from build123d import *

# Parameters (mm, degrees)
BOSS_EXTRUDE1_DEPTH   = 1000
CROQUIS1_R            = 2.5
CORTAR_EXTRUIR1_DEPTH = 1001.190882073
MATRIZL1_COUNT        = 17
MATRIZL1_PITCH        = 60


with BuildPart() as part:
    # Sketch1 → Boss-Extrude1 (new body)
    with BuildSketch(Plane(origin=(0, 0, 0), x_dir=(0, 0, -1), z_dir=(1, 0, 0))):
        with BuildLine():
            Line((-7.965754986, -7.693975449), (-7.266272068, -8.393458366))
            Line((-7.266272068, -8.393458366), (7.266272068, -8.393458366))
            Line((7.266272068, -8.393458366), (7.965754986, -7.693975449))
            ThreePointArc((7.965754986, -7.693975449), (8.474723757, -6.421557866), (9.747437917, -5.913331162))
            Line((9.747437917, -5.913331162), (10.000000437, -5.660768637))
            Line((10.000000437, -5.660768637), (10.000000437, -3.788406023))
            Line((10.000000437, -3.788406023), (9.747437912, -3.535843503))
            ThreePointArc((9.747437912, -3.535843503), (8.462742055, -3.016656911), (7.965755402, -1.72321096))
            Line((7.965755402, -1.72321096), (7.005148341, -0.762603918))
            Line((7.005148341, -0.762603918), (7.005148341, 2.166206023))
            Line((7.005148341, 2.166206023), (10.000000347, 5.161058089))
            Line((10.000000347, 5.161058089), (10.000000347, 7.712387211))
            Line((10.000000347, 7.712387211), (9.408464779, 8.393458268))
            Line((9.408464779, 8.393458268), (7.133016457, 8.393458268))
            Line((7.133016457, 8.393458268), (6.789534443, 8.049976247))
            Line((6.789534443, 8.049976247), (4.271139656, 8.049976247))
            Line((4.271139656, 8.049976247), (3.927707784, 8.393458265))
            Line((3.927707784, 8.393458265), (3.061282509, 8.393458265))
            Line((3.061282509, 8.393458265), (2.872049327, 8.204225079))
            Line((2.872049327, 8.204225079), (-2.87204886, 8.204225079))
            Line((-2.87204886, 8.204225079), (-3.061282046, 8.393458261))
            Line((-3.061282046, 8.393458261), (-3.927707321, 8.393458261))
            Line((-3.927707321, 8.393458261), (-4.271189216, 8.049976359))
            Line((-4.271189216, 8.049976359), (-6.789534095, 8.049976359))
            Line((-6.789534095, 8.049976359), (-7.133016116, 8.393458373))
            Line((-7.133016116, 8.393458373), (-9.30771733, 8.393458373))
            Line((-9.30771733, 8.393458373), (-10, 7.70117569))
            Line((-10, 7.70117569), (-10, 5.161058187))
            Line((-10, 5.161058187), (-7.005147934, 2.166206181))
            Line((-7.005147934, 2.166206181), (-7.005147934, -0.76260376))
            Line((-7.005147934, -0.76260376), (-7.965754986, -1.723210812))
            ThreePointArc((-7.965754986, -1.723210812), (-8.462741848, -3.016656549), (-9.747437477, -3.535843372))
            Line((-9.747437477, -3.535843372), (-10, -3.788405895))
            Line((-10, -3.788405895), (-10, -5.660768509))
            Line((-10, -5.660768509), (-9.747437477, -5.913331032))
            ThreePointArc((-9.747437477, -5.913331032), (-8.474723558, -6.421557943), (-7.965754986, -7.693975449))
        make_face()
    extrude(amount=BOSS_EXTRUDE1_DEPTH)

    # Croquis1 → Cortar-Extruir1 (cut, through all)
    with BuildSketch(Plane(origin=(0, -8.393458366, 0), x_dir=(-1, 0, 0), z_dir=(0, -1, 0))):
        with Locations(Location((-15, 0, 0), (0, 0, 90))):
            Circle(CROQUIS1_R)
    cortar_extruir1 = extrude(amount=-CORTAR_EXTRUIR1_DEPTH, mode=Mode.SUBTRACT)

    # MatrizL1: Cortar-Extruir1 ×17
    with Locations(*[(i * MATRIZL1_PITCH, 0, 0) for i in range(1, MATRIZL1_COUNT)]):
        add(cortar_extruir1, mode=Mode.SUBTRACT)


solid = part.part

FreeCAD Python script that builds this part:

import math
import FreeCAD as App
import Part
import Sketcher
from FreeCAD import Vector
Q = App.Units.Quantity

doc = App.newDocument("Part")
body = doc.addObject("PartDesign::Body", "Body")

sketch1 = body.newObject("Sketcher::SketchObject", "Sketch")
sketch1.AttachmentSupport = (doc.getObject("YZ_Plane"), [""])
sketch1.MapMode = "FlatFace"
sketch1.addGeometry(Part.LineSegment(Vector(-7.69, 7.97, 0), Vector(-8.39, 7.27, 0)), False)
sketch1.addGeometry(Part.LineSegment(Vector(-8.39, 7.27, 0), Vector(-8.39, -7.27, 0)), False)
sketch1.addGeometry(Part.LineSegment(Vector(-8.39, -7.27, 0), Vector(-7.69, -7.97, 0)), False)
sketch1.addGeometry(Part.ArcOfCircle(Part.Circle(Vector(-7.65, -9.7, 0), Vector(0, 0, 1), 1.74), math.radians(-1), math.radians(91)), False)
sketch1.addGeometry(Part.LineSegment(Vector(-5.91, -9.75, 0), Vector(-5.66, -10, 0)), False)
sketch1.addGeometry(Part.LineSegment(Vector(-5.66, -10, 0), Vector(-3.79, -10, 0)), False)
sketch1.addGeometry(Part.LineSegment(Vector(-3.79, -10, 0), Vector(-3.54, -9.75, 0)), False)
sketch1.addGeometry(Part.ArcOfCircle(Part.Circle(Vector(-1.8, -9.7, 0), Vector(0, 0, 1), 1.74), math.radians(88), math.radians(181)), False)
sketch1.addGeometry(Part.LineSegment(Vector(-1.72, -7.97, 0), Vector(-0.76, -7.01, 0)), False)
sketch1.addGeometry(Part.LineSegment(Vector(-0.76, -7.01, 0), Vector(2.17, -7.01, 0)), False)
sketch1.addGeometry(Part.LineSegment(Vector(2.17, -7.01, 0), Vector(5.16, -10, 0)), False)
sketch1.addGeometry(Part.LineSegment(Vector(5.16, -10, 0), Vector(7.71, -10, 0)), False)
sketch1.addGeometry(Part.LineSegment(Vector(7.71, -10, 0), Vector(8.39, -9.41, 0)), False)
sketch1.addGeometry(Part.LineSegment(Vector(8.39, -9.41, 0), Vector(8.39, -7.13, 0)), False)
sketch1.addGeometry(Part.LineSegment(Vector(8.39, -7.13, 0), Vector(8.05, -6.79, 0)), False)
sketch1.addGeometry(Part.LineSegment(Vector(8.05, -6.79, 0), Vector(8.05, -4.27, 0)), False)
sketch1.addGeometry(Part.LineSegment(Vector(8.05, -4.27, 0), Vector(8.39, -3.93, 0)), False)
sketch1.addGeometry(Part.LineSegment(Vector(8.39, -3.93, 0), Vector(8.39, -3.06, 0)), False)
sketch1.addGeometry(Part.LineSegment(Vector(8.39, -3.06, 0), Vector(8.2, -2.87, 0)), False)
sketch1.addGeometry(Part.LineSegment(Vector(8.2, -2.87, 0), Vector(8.2, 2.87, 0)), False)
sketch1.addGeometry(Part.LineSegment(Vector(8.2, 2.87, 0), Vector(8.39, 3.06, 0)), False)
sketch1.addGeometry(Part.LineSegment(Vector(8.39, 3.06, 0), Vector(8.39, 3.93, 0)), False)
sketch1.addGeometry(Part.LineSegment(Vector(8.39, 3.93, 0), Vector(8.05, 4.27, 0)), False)
sketch1.addGeometry(Part.LineSegment(Vector(8.05, 4.27, 0), Vector(8.05, 6.79, 0)), False)
sketch1.addGeometry(Part.LineSegment(Vector(8.05, 6.79, 0), Vector(8.39, 7.13, 0)), False)
sketch1.addGeometry(Part.LineSegment(Vector(8.39, 7.13, 0), Vector(8.39, 9.31, 0)), False)
sketch1.addGeometry(Part.LineSegment(Vector(8.39, 9.31, 0), Vector(7.7, 10, 0)), False)
sketch1.addGeometry(Part.LineSegment(Vector(7.7, 10, 0), Vector(5.16, 10, 0)), False)
sketch1.addGeometry(Part.LineSegment(Vector(5.16, 10, 0), Vector(2.17, 7.01, 0)), False)
sketch1.addGeometry(Part.LineSegment(Vector(2.17, 7.01, 0), Vector(-0.76, 7.01, 0)), False)
sketch1.addGeometry(Part.LineSegment(Vector(-0.76, 7.01, 0), Vector(-1.72, 7.97, 0)), False)
sketch1.addGeometry(Part.ArcOfCircle(Part.Circle(Vector(-1.8, 9.7, 0), Vector(0, 0, 1), 1.74), math.radians(179), math.radians(272)), False)
sketch1.addGeometry(Part.LineSegment(Vector(-3.54, 9.75, 0), Vector(-3.79, 10, 0)), False)
sketch1.addGeometry(Part.LineSegment(Vector(-3.79, 10, 0), Vector(-5.66, 10, 0)), False)
sketch1.addGeometry(Part.LineSegment(Vector(-5.66, 10, 0), Vector(-5.91, 9.75, 0)), False)
sketch1.addGeometry(Part.ArcOfCircle(Part.Circle(Vector(-7.65, 9.7, 0), Vector(0, 0, 1), 1.74), math.radians(-91), math.radians(1)), False)
sketch1.addConstraint(Sketcher.Constraint("Coincident", 0, 2, 1, 1))
sketch1.addConstraint(Sketcher.Constraint("Coincident", 1, 2, 2, 1))
sketch1.addConstraint(Sketcher.Constraint("Coincident", 2, 2, 3, 2))
sketch1.addConstraint(Sketcher.Constraint("Coincident", 3, 1, 4, 1))
sketch1.addConstraint(Sketcher.Constraint("Coincident", 4, 2, 5, 1))
sketch1.addConstraint(Sketcher.Constraint("Coincident", 5, 2, 6, 1))
sketch1.addConstraint(Sketcher.Constraint("Coincident", 6, 2, 7, 2))
sketch1.addConstraint(Sketcher.Constraint("Coincident", 7, 1, 8, 1))
sketch1.addConstraint(Sketcher.Constraint("Coincident", 8, 2, 9, 1))
sketch1.addConstraint(Sketcher.Constraint("Coincident", 9, 2, 10, 1))
sketch1.addConstraint(Sketcher.Constraint("Coincident", 10, 2, 11, 1))
sketch1.addConstraint(Sketcher.Constraint("Coincident", 11, 2, 12, 1))
sketch1.addConstraint(Sketcher.Constraint("Coincident", 12, 2, 13, 1))
sketch1.addConstraint(Sketcher.Constraint("Coincident", 13, 2, 14, 1))
sketch1.addConstraint(Sketcher.Constraint("Coincident", 14, 2, 15, 1))
sketch1.addConstraint(Sketcher.Constraint("Coincident", 15, 2, 16, 1))
sketch1.addConstraint(Sketcher.Constraint("Coincident", 16, 2, 17, 1))
sketch1.addConstraint(Sketcher.Constraint("Coincident", 17, 2, 18, 1))
sketch1.addConstraint(Sketcher.Constraint("Coincident", 18, 2, 19, 1))
sketch1.addConstraint(Sketcher.Constraint("Coincident", 19, 2, 20, 1))
sketch1.addConstraint(Sketcher.Constraint("Coincident", 20, 2, 21, 1))
sketch1.addConstraint(Sketcher.Constraint("Coincident", 21, 2, 22, 1))
sketch1.addConstraint(Sketcher.Constraint("Coincident", 22, 2, 23, 1))
sketch1.addConstraint(Sketcher.Constraint("Coincident", 23, 2, 24, 1))
sketch1.addConstraint(Sketcher.Constraint("Coincident", 24, 2, 25, 1))
sketch1.addConstraint(Sketcher.Constraint("Coincident", 25, 2, 26, 1))
sketch1.addConstraint(Sketcher.Constraint("Coincident", 26, 2, 27, 1))
sketch1.addConstraint(Sketcher.Constraint("Coincident", 27, 2, 28, 1))
sketch1.addConstraint(Sketcher.Constraint("Coincident", 28, 2, 29, 1))
sketch1.addConstraint(Sketcher.Constraint("Coincident", 29, 2, 30, 1))
sketch1.addConstraint(Sketcher.Constraint("Coincident", 30, 2, 31, 2))
sketch1.addConstraint(Sketcher.Constraint("Coincident", 31, 1, 32, 1))
sketch1.addConstraint(Sketcher.Constraint("Coincident", 32, 2, 33, 1))
sketch1.addConstraint(Sketcher.Constraint("Coincident", 33, 2, 34, 1))
sketch1.addConstraint(Sketcher.Constraint("Coincident", 34, 2, 35, 2))
sketch1.addConstraint(Sketcher.Constraint("Coincident", 35, 1, 0, 1))
sketch1.addConstraint(Sketcher.Constraint("Vertical", 1))
sketch1.addConstraint(Sketcher.Constraint("Horizontal", 5))
sketch1.addConstraint(Sketcher.Constraint("Horizontal", 9))
sketch1.addConstraint(Sketcher.Constraint("Horizontal", 11))
sketch1.addConstraint(Sketcher.Constraint("Vertical", 13))
sketch1.addConstraint(Sketcher.Constraint("Vertical", 15))
sketch1.addConstraint(Sketcher.Constraint("Vertical", 17))
sketch1.addConstraint(Sketcher.Constraint("Vertical", 19))
sketch1.addConstraint(Sketcher.Constraint("Vertical", 21))
sketch1.addConstraint(Sketcher.Constraint("Vertical", 23))
sketch1.addConstraint(Sketcher.Constraint("Vertical", 25))
sketch1.addConstraint(Sketcher.Constraint("Horizontal", 27))
sketch1.addConstraint(Sketcher.Constraint("Horizontal", 29))
sketch1.addConstraint(Sketcher.Constraint("Horizontal", 33))
sketch1.addConstraint(Sketcher.Constraint("Equal", 3, 7))
sketch1.addConstraint(Sketcher.Constraint("Equal", 7, 31))
sketch1.addConstraint(Sketcher.Constraint("Equal", 31, 35))
sketch1.addConstraint(Sketcher.Constraint("Symmetric", 7, 3, 31, 3, -1))
sketch1.addConstraint(Sketcher.Constraint("Symmetric", 3, 3, 35, 3, -1))
sketch1.addConstraint(Sketcher.Constraint("Symmetric", 17, 2, 20, 2, -1))
sketch1.addConstraint(Sketcher.Constraint("Symmetric", 14, 2, 23, 2, -1))
sketch1.addConstraint(Sketcher.Constraint("Symmetric", 13, 2, 24, 2, -1))
sketch1.addConstraint(Sketcher.Constraint("Symmetric", 10, 2, 27, 2, -1))
sketch1.addConstraint(Sketcher.Constraint("Symmetric", 9, 2, 28, 2, -1))
sketch1.addConstraint(Sketcher.Constraint("Symmetric", 5, 2, 32, 2, -1))
sketch1.addConstraint(Sketcher.Constraint("Perpendicular", 0, 2))
sketch1.addConstraint(Sketcher.Constraint("Parallel", 2, 4))
sketch1.addConstraint(Sketcher.Constraint("Perpendicular", 4, 6))
sketch1.addConstraint(Sketcher.Constraint("Parallel", 6, 8))
sketch1.addConstraint(Sketcher.Constraint("Perpendicular", 8, 10))
sketch1.addConstraint(Sketcher.Constraint("Parallel", 10, 14))
sketch1.addConstraint(Sketcher.Constraint("Parallel", 14, 18))
sketch1.addConstraint(Sketcher.Constraint("Perpendicular", 18, 20))
sketch1.addConstraint(Sketcher.Constraint("Perpendicular", 20, 22))
sketch1.addConstraint(Sketcher.Constraint("Perpendicular", 22, 24))
sketch1.addConstraint(Sketcher.Constraint("Perpendicular", 24, 26))
sketch1.addConstraint(Sketcher.Constraint("Perpendicular", 28, 30))
sketch1.addConstraint(Sketcher.Constraint("Parallel", 30, 32))
sketch1.addConstraint(Sketcher.Constraint("Perpendicular", 32, 34))
sketch1.addConstraint(Sketcher.Constraint("Horizontal", 3, 1, 6, 2))
sketch1.addConstraint(Sketcher.Constraint("Horizontal", 2, 2, 7, 1))
sketch1.addConstraint(Sketcher.Constraint("Horizontal", 5, 2, 10, 2))
sketch1.addConstraint(Sketcher.Constraint("Horizontal", 31, 1, 34, 2))
sketch1.addConstraint(Sketcher.Constraint("Horizontal", 30, 2, 35, 1))
sketch1.addConstraint(Sketcher.Constraint("Vertical", 13, 2, 16, 2))
sketch1.addConstraint(Sketcher.Constraint("Vertical", 8, 2, 29, 2))
sketch1.addConstraint(Sketcher.Constraint("Equal", 17, 21))
sketch1.addConstraint(Sketcher.Constraint("DistanceY", 4, 2, -1, 1, Q("10 mm")))
sketch1.addConstraint(Sketcher.Constraint("Radius", 3, Q("1.738311 mm")))
sketch1.addConstraint(Sketcher.Constraint("DistanceY", 19, 1, 19, 2, Q("5.744098 mm")))
sketch1.addConstraint(Sketcher.Constraint("DistanceY", 25, 1, 25, 2, Q("2.174701 mm")))
sketch1.addConstraint(Sketcher.Constraint("DistanceX", 9, 1, 9, 2, Q("2.92881 mm")))
sketch1.addConstraint(Sketcher.Constraint("DistanceX", 11, 1, 11, 2, Q("2.551329 mm")))
sketch1.addConstraint(Sketcher.Constraint("DistanceY", 13, 1, 13, 2, Q("2.275448 mm")))
sketch1.addConstraint(Sketcher.Constraint("DistanceY", 3, 1, 3, 3, Q("0.043901 mm")))
sketch1.addConstraint(Sketcher.Constraint("DistanceX", 6, 2, 10, 2, Q("8.696902 mm")))
sketch1.addConstraint(Sketcher.Constraint("DistanceX", 7, 1, 11, 2, Q("9.435598 mm")))
sketch1.addConstraint(Sketcher.Constraint("DistanceX", 10, 2, 12, 2, Q("3.2324 mm")))
sketch1.addConstraint(Sketcher.Constraint("DistanceX", 26, 2, 23, 2, Q("0.348801 mm")))
sketch1.addConstraint(Sketcher.Constraint("Distance", 0, Q("0.989218 mm")))
sketch1.addConstraint(Sketcher.Constraint("Distance", 10, Q("4.23536 mm")))
sketch1.addConstraint(Sketcher.Constraint("Distance", 16, Q("0.485721 mm")))
sketch1.addConstraint(Sketcher.Constraint("DistanceX", 5, 1, 5, 2, Q("1.872363 mm")))
sketch1.addConstraint(Sketcher.Constraint("DistanceX", 27, 2, 27, 1, Q("2.540118 mm")))
sketch1.addConstraint(Sketcher.Constraint("DistanceY", 15, 1, 15, 2, Q("2.518395 mm")))
sketch1.addConstraint(Sketcher.Constraint("DistanceY", 17, 1, 17, 2, Q("0.866425 mm")))
sketch1.addConstraint(Sketcher.Constraint("DistanceX", 0, 2, -1, 1, Q("8.393458 mm")))
sketch1.addConstraint(Sketcher.Constraint("DistanceX", 3, 1, -1, 1, Q("5.913331 mm")))
pad1 = body.newObject("PartDesign::Pad", "Pad")
pad1.Profile = sketch1
pad1.Length = 1000

sketch2 = body.newObject("Sketcher::SketchObject", "Sketch001")
sketch2.AttachmentSupport = (doc.getObject("XZ_Plane"), [""])
sketch2.MapMode = "FlatFace"
sketch2.AttachmentOffset = App.Placement(Vector(0, 0, 8.393458), App.Rotation())
sketch2.addGeometry(Part.Circle(Vector(15, 0, 0), Vector(0, 0, 1), 2.5), False)
sketch2.addConstraint(Sketcher.Constraint("PointOnObject", 0, 3, -1))
sketch2.addConstraint(Sketcher.Constraint("Diameter", 0, Q("5 mm")))
sketch2.addConstraint(Sketcher.Constraint("DistanceX", -1, 1, 0, 3, Q("15 mm")))
pocket1 = body.newObject("PartDesign::Pocket", "Pocket")
pocket1.Profile = sketch2
pocket1.Type = "ThroughAll"
doc.recompute()

linearpattern = body.newObject("PartDesign::LinearPattern", "LinearPattern")
linearpattern.Originals = [pocket1]
linearpattern.Direction = (doc.getObject("X_Axis"), [""])
linearpattern.Mode = "offset"
linearpattern.Offset = 60
linearpattern.Occurrences = 17
body.Tip = linearpattern

doc.recompute()
